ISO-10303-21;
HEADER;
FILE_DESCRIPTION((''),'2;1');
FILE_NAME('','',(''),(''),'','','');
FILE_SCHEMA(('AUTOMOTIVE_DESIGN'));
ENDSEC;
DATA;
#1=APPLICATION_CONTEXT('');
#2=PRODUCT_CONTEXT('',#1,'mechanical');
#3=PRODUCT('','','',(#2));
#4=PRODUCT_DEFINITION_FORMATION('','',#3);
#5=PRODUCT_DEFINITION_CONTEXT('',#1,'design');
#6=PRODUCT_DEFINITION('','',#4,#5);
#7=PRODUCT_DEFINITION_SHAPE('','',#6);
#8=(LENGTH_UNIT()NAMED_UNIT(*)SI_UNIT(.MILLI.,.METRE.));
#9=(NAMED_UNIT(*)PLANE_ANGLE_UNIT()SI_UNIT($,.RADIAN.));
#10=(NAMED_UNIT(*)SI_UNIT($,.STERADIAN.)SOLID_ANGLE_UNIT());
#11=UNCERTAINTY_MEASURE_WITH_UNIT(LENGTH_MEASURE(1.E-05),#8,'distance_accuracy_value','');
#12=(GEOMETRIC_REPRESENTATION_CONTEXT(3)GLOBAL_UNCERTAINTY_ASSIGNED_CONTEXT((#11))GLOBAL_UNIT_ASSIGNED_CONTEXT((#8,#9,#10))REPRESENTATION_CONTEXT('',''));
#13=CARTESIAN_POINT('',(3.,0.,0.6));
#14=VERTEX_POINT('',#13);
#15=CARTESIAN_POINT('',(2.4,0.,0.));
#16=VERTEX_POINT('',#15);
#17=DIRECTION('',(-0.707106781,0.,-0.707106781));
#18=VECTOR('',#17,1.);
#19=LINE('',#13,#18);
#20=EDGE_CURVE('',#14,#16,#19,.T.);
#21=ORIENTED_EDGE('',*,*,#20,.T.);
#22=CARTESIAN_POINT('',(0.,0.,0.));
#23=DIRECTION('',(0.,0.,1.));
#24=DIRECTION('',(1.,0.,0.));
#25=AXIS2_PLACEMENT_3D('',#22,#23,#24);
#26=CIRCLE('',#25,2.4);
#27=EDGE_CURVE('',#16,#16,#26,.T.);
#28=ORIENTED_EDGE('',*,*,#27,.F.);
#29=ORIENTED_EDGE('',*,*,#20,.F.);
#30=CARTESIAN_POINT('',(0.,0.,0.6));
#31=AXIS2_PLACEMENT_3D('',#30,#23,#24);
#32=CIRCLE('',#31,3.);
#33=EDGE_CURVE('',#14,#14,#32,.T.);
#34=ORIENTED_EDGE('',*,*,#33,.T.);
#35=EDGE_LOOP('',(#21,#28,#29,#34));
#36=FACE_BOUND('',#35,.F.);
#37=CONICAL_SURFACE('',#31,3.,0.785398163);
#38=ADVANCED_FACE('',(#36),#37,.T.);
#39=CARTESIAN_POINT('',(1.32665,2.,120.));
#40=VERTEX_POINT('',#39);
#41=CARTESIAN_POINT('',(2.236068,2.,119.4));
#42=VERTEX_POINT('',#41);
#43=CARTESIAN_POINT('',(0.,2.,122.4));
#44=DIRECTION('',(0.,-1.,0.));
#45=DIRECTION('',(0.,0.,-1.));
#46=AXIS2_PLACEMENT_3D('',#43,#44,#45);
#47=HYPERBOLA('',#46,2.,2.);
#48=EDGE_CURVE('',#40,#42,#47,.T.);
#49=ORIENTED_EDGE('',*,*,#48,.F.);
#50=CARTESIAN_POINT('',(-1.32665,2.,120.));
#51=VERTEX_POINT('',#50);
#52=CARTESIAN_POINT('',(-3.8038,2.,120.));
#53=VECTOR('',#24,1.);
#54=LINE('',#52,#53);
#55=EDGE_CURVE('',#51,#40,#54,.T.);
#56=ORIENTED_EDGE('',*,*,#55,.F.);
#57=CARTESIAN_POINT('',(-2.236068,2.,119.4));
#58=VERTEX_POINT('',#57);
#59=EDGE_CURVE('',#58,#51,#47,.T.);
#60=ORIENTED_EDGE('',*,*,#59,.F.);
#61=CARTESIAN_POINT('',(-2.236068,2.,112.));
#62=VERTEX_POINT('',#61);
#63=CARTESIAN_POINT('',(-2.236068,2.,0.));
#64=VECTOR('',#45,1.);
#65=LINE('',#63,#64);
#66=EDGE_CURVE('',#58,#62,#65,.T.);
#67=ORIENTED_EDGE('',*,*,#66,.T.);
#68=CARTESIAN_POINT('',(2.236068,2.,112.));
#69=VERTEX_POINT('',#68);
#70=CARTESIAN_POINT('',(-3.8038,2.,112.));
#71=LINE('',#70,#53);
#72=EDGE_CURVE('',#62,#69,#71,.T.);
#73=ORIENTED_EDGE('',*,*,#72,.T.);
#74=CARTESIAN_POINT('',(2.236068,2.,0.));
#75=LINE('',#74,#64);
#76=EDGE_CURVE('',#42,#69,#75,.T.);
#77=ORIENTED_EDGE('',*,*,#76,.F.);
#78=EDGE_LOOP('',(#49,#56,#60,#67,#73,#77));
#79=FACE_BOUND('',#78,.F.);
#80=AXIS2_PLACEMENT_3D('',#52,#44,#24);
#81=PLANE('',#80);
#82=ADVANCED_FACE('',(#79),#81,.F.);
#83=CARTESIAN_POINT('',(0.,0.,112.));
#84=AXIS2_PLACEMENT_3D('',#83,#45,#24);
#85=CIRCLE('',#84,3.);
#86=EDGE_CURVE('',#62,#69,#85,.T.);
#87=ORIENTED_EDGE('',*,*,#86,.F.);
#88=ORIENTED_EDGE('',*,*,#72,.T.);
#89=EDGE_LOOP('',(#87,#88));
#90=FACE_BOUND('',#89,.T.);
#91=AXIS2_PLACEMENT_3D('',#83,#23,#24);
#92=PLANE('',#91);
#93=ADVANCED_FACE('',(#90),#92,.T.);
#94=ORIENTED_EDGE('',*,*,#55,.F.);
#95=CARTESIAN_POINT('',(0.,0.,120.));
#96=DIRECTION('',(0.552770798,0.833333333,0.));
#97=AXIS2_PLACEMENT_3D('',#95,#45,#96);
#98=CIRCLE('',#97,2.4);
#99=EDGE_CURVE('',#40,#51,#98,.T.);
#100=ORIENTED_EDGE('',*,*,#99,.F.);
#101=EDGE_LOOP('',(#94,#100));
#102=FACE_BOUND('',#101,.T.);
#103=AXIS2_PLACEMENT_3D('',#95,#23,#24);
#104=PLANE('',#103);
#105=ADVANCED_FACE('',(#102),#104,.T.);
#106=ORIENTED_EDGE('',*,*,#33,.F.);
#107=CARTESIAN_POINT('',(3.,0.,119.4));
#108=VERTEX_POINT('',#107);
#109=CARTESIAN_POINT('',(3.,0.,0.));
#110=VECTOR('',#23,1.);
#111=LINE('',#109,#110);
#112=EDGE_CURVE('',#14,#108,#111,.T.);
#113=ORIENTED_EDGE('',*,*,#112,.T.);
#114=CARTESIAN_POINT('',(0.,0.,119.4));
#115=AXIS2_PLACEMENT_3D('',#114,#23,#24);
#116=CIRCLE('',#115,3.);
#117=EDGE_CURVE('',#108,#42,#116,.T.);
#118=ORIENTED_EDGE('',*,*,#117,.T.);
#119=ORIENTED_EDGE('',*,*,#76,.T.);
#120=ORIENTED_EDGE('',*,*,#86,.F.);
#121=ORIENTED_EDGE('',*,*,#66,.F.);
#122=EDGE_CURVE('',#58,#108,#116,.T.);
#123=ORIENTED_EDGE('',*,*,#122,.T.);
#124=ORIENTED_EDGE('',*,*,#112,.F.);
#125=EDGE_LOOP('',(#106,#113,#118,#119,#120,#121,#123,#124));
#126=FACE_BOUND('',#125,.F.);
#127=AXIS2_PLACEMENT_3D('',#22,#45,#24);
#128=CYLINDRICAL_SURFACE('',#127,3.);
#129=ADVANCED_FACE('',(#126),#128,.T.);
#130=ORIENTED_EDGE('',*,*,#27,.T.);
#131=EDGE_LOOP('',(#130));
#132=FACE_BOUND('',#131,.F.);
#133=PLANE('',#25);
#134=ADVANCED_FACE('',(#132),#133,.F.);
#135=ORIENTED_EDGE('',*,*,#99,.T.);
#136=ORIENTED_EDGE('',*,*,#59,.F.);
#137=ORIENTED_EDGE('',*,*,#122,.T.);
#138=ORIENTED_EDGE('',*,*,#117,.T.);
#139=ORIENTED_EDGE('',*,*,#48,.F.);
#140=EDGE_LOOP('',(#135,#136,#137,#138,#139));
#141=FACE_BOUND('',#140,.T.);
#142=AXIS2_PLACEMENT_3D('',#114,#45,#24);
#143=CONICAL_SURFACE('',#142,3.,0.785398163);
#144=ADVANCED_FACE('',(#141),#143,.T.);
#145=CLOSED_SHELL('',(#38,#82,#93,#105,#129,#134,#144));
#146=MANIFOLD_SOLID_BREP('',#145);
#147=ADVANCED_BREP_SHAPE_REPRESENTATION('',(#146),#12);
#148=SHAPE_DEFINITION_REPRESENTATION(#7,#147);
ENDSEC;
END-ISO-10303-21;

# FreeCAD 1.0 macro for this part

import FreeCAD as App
import Part
import Sketcher
from FreeCAD import Vector
Q = App.Units.Quantity


def edges_at(feature, points):
    """Names of the edges that pass closest to the given points."""
    edges = feature.Shape.Edges
    near = lambda p: min(range(len(edges)), key=lambda i: edges[i].distToShape(Part.Vertex(*p))[0])
    return sorted({f"Edge{near(p) + 1}" for p in points})

doc = App.newDocument("Part")
body = doc.addObject("PartDesign::Body", "Body")

# Sketch on XY plane
sketch1 = body.newObject("Sketcher::SketchObject", "Sketch")
sketch1.AttachmentSupport = (doc.getObject("XY_Plane"), [""])
sketch1.MapMode = "FlatFace"
sketch1.addGeometry(Part.Circle(Vector(0, 0, 0), Vector(0, 0, 1), 3), False)
sketch1.addConstraint([
    Sketcher.Constraint("Coincident", 0, 3, -1, 1),
    Sketcher.Constraint("Diameter", 0, Q("6 mm")),
])
pad1 = body.newObject("PartDesign::Pad", "Pad")
pad1.Profile = sketch1
pad1.Length = 120
doc.recompute()

chamfer = body.newObject("PartDesign::Chamfer", "Chamfer")
chamfer.Base = (pad1, edges_at(pad1, [(-3, 0, 120)]))
chamfer.Size = 0.6
doc.recompute()

chamfer2 = body.newObject("PartDesign::Chamfer", "Chamfer001")
chamfer2.Base = (chamfer, edges_at(chamfer, [(-3, 0, 0)]))
chamfer2.Size = 0.6

# Sketch on XY plane
sketch2 = body.newObject("Sketcher::SketchObject", "Sketch001")
sketch2.AttachmentSupport = (doc.getObject("XY_Plane"), [""])
sketch2.MapMode = "FlatFace"
sketch2.AttachmentOffset = App.Placement(Vector(0, 0, 120), App.Rotation())
sketch2.addGeometry([
    Part.LineSegment(Vector(3.9, 2, 0), Vector(3.9, 4.6, 0)),
    Part.LineSegment(Vector(3.9, 4.6, 0), Vector(-3.8, 4.6, 0)),
    Part.LineSegment(Vector(-3.8, 4.6, 0), Vector(-3.8, 2, 0)),
    Part.LineSegment(Vector(-3.8, 2, 0), Vector(3.9, 2, 0)),
], False)
sketch2.addConstraint([
    Sketcher.Constraint("Coincident", 0, 2, 1, 1),
    Sketcher.Constraint("Coincident", 1, 2, 2, 1),
    Sketcher.Constraint("Coincident", 2, 2, 3, 1),
    Sketcher.Constraint("Coincident", 3, 2, 0, 1),
    Sketcher.Constraint("Vertical", 0),
    Sketcher.Constraint("Horizontal", 1),
    Sketcher.Constraint("Vertical", 2),
    Sketcher.Constraint("Horizontal", 3),
    Sketcher.Constraint("DistanceY", -1, 1, 2, 2, Q("2 mm")),
    Sketcher.Constraint("DistanceX", 1, 2, 1, 1, Q("7.6734 mm")),
    Sketcher.Constraint("DistanceY", 0, 1, 0, 2, Q("2.6025 mm")),
    Sketcher.Constraint("DistanceX", -1, 1, 0, 2, Q("3.8696 mm")),
])
pocket1 = body.newObject("PartDesign::Pocket", "Pocket")
pocket1.Profile = sketch2
pocket1.Length = 8

doc.recompute()
